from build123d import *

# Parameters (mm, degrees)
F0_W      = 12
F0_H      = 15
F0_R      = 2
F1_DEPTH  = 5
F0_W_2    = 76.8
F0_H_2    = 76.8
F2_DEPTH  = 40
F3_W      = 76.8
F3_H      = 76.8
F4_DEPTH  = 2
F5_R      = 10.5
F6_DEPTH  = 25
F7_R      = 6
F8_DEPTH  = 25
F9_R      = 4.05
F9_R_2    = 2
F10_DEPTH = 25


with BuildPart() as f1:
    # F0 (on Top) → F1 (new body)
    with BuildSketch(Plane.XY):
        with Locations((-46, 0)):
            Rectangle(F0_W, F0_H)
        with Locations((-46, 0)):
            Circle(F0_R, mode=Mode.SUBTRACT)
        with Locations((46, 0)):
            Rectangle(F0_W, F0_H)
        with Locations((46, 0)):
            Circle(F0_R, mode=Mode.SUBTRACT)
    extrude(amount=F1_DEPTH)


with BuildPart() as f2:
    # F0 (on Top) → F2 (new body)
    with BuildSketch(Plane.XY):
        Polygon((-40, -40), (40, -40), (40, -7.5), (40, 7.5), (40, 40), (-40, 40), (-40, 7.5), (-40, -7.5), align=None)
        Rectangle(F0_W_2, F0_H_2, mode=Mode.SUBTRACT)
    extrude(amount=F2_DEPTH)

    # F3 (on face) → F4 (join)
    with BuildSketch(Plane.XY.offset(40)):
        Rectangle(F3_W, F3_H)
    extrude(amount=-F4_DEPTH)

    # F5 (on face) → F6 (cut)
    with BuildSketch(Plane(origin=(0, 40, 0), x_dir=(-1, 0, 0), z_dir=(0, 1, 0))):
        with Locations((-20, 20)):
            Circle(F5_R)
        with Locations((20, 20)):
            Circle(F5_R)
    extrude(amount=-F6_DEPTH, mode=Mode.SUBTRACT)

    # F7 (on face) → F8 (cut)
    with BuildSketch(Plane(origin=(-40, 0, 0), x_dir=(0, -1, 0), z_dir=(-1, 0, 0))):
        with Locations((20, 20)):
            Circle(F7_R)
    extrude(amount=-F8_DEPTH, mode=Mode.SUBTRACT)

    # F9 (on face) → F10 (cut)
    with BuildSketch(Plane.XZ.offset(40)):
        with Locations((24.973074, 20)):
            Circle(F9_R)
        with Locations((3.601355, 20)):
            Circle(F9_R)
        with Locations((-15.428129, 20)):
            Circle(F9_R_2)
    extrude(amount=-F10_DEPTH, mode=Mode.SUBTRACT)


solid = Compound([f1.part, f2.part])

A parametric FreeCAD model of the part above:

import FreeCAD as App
import Part
import Sketcher
from FreeCAD import Vector
Q = App.Units.Quantity

doc = App.newDocument("Part")
params = doc.addObject("Spreadsheet::Sheet", "Params")
for row, (alias, value) in enumerate([
    ("sketch1_diameter", "4 mm"),
    ("sketch1_width", "12 mm"),
    ("sketch1_height", "15 mm"),
    ("pad1_length", "5 mm"),
    ("sketch2_width", "80 mm"),
    ("sketch2_width2", "76.8 mm"),
    ("pad2_length", "40 mm"),
    ("sketch3_width", "76.8 mm"),
    ("pad3_length", "2 mm"),
    ("sketch4_diameter", "21 mm"),
    ("pocket1_length", "25 mm"),
    ("sketch5_diameter", "12 mm"),
    ("pocket2_length", "25 mm"),
    ("sketch6_diameter", "4 mm"),
    ("sketch6_diameter2", "8.1 mm"),
    ("pocket3_length", "25 mm"),
], start=1):
    params.set(f"A{row}", alias)
    params.set(f"B{row}", "=" + value)
    params.setAlias(f"B{row}", alias)

body = doc.addObject("PartDesign::Body", "Body")
body.AllowCompound = True

sketch1 = body.newObject("Sketcher::SketchObject", "Sketch")
sketch1.AttachmentSupport = (doc.getObject("XY_Plane"), [""])
sketch1.MapMode = "FlatFace"
sketch1.addGeometry([
    Part.LineSegment(Vector(-52, 7.5, 0), Vector(-52, -7.5, 0)),
    Part.LineSegment(Vector(-52, -7.5, 0), Vector(-40, -7.5, 0)),
    Part.LineSegment(Vector(-40, -7.5, 0), Vector(-40, 7.5, 0)),
    Part.LineSegment(Vector(-40, 7.5, 0), Vector(-52, 7.5, 0)),
    Part.Circle(Vector(-46, 0, 0), Vector(0, 0, 1), 2),
    Part.LineSegment(Vector(40, 7.5, 0), Vector(40, -7.5, 0)),
    Part.LineSegment(Vector(40, -7.5, 0), Vector(52, -7.5, 0)),
    Part.LineSegment(Vector(52, -7.5, 0), Vector(52, 7.5, 0)),
    Part.LineSegment(Vector(52, 7.5, 0), Vector(40, 7.5, 0)),
    Part.Circle(Vector(46, 0, 0), Vector(0, 0, 1), 2),
], False)
sketch1.addConstraint([
    Sketcher.Constraint("Coincident", 0, 2, 1, 1),
    Sketcher.Constraint("Coincident", 1, 2, 2, 1),
    Sketcher.Constraint("Coincident", 2, 2, 3, 1),
    Sketcher.Constraint("Coincident", 3, 2, 0, 1),
    Sketcher.Constraint("Coincident", 5, 2, 6, 1),
    Sketcher.Constraint("Coincident", 6, 2, 7, 1),
    Sketcher.Constraint("Coincident", 7, 2, 8, 1),
    Sketcher.Constraint("Coincident", 8, 2, 5, 1),
    Sketcher.Constraint("Vertical", 0),
    Sketcher.Constraint("Horizontal", 1),
    Sketcher.Constraint("Vertical", 2),
    Sketcher.Constraint("Horizontal", 3),
    Sketcher.Constraint("Vertical", 5),
    Sketcher.Constraint("Horizontal", 6),
    Sketcher.Constraint("Vertical", 7),
    Sketcher.Constraint("Horizontal", 8),
    Sketcher.Constraint("Equal", 4, 9),
    Sketcher.Constraint("Symmetric", 4, 3, 9, 3, -1, 1),
    Sketcher.Constraint("Symmetric", 2, 2, 5, 2, -1, 1),
    Sketcher.Constraint("Symmetric", 0, 2, 7, 2, -1, 1),
    Sketcher.Constraint("PointOnObject", 4, 3, -1),
    Sketcher.Constraint("Horizontal", 1, 2, 5, 2),
    Sketcher.Constraint("Diameter", 4, Q("4 mm")),
    Sketcher.Constraint("DistanceX", 1, 1, 1, 2, Q("12 mm")),
    Sketcher.Constraint("DistanceY", 0, 2, 0, 1, Q("15 mm")),
    Sketcher.Constraint("DistanceX", 4, 3, -1, 1, Q("46 mm")),
    Sketcher.Constraint("DistanceX", 0, 2, -1, 1, Q("52 mm")),
])
sketch1.setExpression("Constraints[22]", "Params.sketch1_diameter")
sketch1.setExpression("Constraints[23]", "Params.sketch1_width")
sketch1.setExpression("Constraints[24]", "Params.sketch1_height")
pad1 = body.newObject("PartDesign::Pad", "Pad")
pad1.Profile = sketch1
pad1.setExpression("Length", "Params.pad1_length")
body2 = doc.addObject("PartDesign::Body", "Body001")

sketch2 = body2.newObject("Sketcher::SketchObject", "Sketch001")
sketch2.AttachmentSupport = (doc.getObject("XY_Plane001"), [""])
sketch2.MapMode = "FlatFace"
sketch2.addGeometry([
    Part.LineSegment(Vector(-40, -40, 0), Vector(40, -40, 0)),
    Part.LineSegment(Vector(40, -40, 0), Vector(40, 40, 0)),
    Part.LineSegment(Vector(40, 40, 0), Vector(-40, 40, 0)),
    Part.LineSegment(Vector(-40, 40, 0), Vector(-40, -40, 0)),
    Part.LineSegment(Vector(38.4, -38.4, 0), Vector(-38.4, -38.4, 0)),
    Part.LineSegment(Vector(-38.4, -38.4, 0), Vector(-38.4, 38.4, 0)),
    Part.LineSegment(Vector(-38.4, 38.4, 0), Vector(38.4, 38.4, 0)),
    Part.LineSegment(Vector(38.4, 38.4, 0), Vector(38.4, -38.4, 0)),
], False)
sketch2.addConstraint([
    Sketcher.Constraint("Coincident", 0, 2, 1, 1),
    Sketcher.Constraint("Coincident", 1, 2, 2, 1),
    Sketcher.Constraint("Coincident", 2, 2, 3, 1),
    Sketcher.Constraint("Coincident", 3, 2, 0, 1),
    Sketcher.Constraint("Coincident", 4, 2, 5, 1),
    Sketcher.Constraint("Coincident", 5, 2, 6, 1),
    Sketcher.Constraint("Coincident", 6, 2, 7, 1),
    Sketcher.Constraint("Coincident", 7, 2, 4, 1),
    Sketcher.Constraint("Horizontal", 0),
    Sketcher.Constraint("Vertical", 1),
    Sketcher.Constraint("Horizontal", 2),
    Sketcher.Constraint("Vertical", 3),
    Sketcher.Constraint("Horizontal", 4),
    Sketcher.Constraint("Vertical", 5),
    Sketcher.Constraint("Horizontal", 6),
    Sketcher.Constraint("Vertical", 7),
    Sketcher.Constraint("Symmetric", 0, 2, 2, 2, -1, 1),
    Sketcher.Constraint("Symmetric", 4, 2, 6, 2, -1, 1),
    Sketcher.Constraint("Equal", 2, 1),
    Sketcher.Constraint("Equal", 6, 5),
    Sketcher.Constraint("DistanceX", 0, 1, 0, 2, Q("80 mm")),
    Sketcher.Constraint("DistanceX", 4, 2, 4, 1, Q("76.8 mm")),
])
sketch2.setExpression("Constraints[20]", "Params.sketch2_width")
sketch2.setExpression("Constraints[21]", "Params.sketch2_width2")
pad2 = body2.newObject("PartDesign::Pad", "Pad001")
pad2.Profile = sketch2
pad2.setExpression("Length", "Params.pad2_length")

sketch3 = body2.newObject("Sketcher::SketchObject", "Sketch002")
sketch3.AttachmentSupport = (doc.getObject("XY_Plane001"), [""])
sketch3.MapMode = "FlatFace"
sketch3.AttachmentOffset = App.Placement(Vector(0, 0, 40), App.Rotation())
sketch3.addGeometry([
    Part.LineSegment(Vector(-38.4, 38.4, 0), Vector(-38.4, -38.4, 0)),
    Part.LineSegment(Vector(-38.4, -38.4, 0), Vector(38.4, -38.4, 0)),
    Part.LineSegment(Vector(38.4, -38.4, 0), Vector(38.4, 38.4, 0)),
    Part.LineSegment(Vector(38.4, 38.4, 0), Vector(-38.4, 38.4, 0)),
], False)
sketch3.addConstraint([
    Sketcher.Constraint("Coincident", 0, 2, 1, 1),
    Sketcher.Constraint("Coincident", 1, 2, 2, 1),
    Sketcher.Constraint("Coincident", 2, 2, 3, 1),
    Sketcher.Constraint("Coincident", 3, 2, 0, 1),
    Sketcher.Constraint("Vertical", 0),
    Sketcher.Constraint("Horizontal", 1),
    Sketcher.Constraint("Vertical", 2),
    Sketcher.Constraint("Horizontal", 3),
    Sketcher.Constraint("Symmetric", 0, 2, 2, 2, -1, 1),
    Sketcher.Constraint("Equal", 3, 0),
    Sketcher.Constraint("DistanceX", 1, 1, 1, 2, Q("76.8 mm")),
])
sketch3.setExpression("Constraints[10]", "Params.sketch3_width")
pad3 = body2.newObject("PartDesign::Pad", "Pad002")
pad3.Profile = sketch3
pad3.setExpression("Length", "Params.pad3_length")
pad3.Reversed = True

sketch4 = body2.newObject("Sketcher::SketchObject", "Sketch003")
sketch4.AttachmentSupport = (doc.getObject("XZ_Plane001"), [""])
sketch4.MapMode = "FlatFace"
sketch4.AttachmentOffset = App.Placement(Vector(0, 0, -40), App.Rotation())
sketch4.addGeometry([
    Part.Circle(Vector(20, 20, 0), Vector(0, 0, 1), 10.5),
    Part.Circle(Vector(-20, 20, 0), Vector(0, 0, 1), 10.5),
], False)
sketch4.addConstraint([
    Sketcher.Constraint("Equal", 0, 1),
    Sketcher.Constraint("Symmetric", 0, 3, 1, 3, -2),
    Sketcher.Constraint("Diameter", 0, Q("21 mm")),
    Sketcher.Constraint("DistanceX", -1, 1, 0, 3, Q("20 mm")),
    Sketcher.Constraint("DistanceY", -1, 1, 0, 3, Q("20 mm")),
])
sketch4.setExpression("Constraints[2]", "Params.sketch4_diameter")
pocket1 = body2.newObject("PartDesign::Pocket", "Pocket")
pocket1.Profile = sketch4
pocket1.setExpression("Length", "Params.pocket1_length")
pocket1.Reversed = True

sketch5 = body2.newObject("Sketcher::SketchObject", "Sketch004")
sketch5.AttachmentSupport = (doc.getObject("YZ_Plane001"), [""])
sketch5.MapMode = "FlatFace"
sketch5.AttachmentOffset = App.Placement(Vector(0, 0, -40), App.Rotation())
sketch5.addGeometry(Part.Circle(Vector(-20, 20, 0), Vector(0, 0, 1), 6), False)
sketch5.addConstraint([
    Sketcher.Constraint("Diameter", 0, Q("12 mm")),
    Sketcher.Constraint("DistanceX", 0, 3, -1, 1, Q("20 mm")),
    Sketcher.Constraint("DistanceY", -1, 1, 0, 3, Q("20 mm")),
])
sketch5.setExpression("Constraints[0]", "Params.sketch5_diameter")
pocket2 = body2.newObject("PartDesign::Pocket", "Pocket001")
pocket2.Profile = sketch5
pocket2.setExpression("Length", "Params.pocket2_length")
pocket2.Reversed = True

sketch6 = body2.newObject("Sketcher::SketchObject", "Sketch005")
sketch6.AttachmentSupport = (doc.getObject("XZ_Plane001"), [""])
sketch6.MapMode = "FlatFace"
sketch6.AttachmentOffset = App.Placement(Vector(0, 0, 40), App.Rotation())
sketch6.addGeometry([
    Part.Circle(Vector(24.973074, 20, 0), Vector(0, 0, 1), 4.05),
    Part.Circle(Vector(3.601355, 20, 0), Vector(0, 0, 1), 4.05),
    Part.Circle(Vector(-15.428129, 20, 0), Vector(0, 0, 1), 2),
], False)
sketch6.addConstraint([
    Sketcher.Constraint("Equal", 0, 1),
    Sketcher.Constraint("Horizontal", 0, 3, 1, 3),
    Sketcher.Constraint("Horizontal", 1, 3, 2, 3),
    Sketcher.Constraint("Diameter", 2, Q("4 mm")),
    Sketcher.Constraint("Diameter", 0, Q("8.1 mm")),
    Sketcher.Constraint("DistanceY", -1, 1, 0, 3, Q("20 mm")),
    Sketcher.Constraint("DistanceX", 2, 3, -1, 1, Q("15.428129 mm")),
    Sketcher.Constraint("DistanceX", 1, 3, 0, 3, Q("21.371719 mm")),
    Sketcher.Constraint("DistanceX", -1, 1, 0, 3, Q("24.973074 mm")),
])
sketch6.setExpression("Constraints[3]", "Params.sketch6_diameter")
sketch6.setExpression("Constraints[4]", "Params.sketch6_diameter2")
pocket3 = body2.newObject("PartDesign::Pocket", "Pocket002")
pocket3.Profile = sketch6
pocket3.setExpression("Length", "Params.pocket3_length")

doc.recompute()
